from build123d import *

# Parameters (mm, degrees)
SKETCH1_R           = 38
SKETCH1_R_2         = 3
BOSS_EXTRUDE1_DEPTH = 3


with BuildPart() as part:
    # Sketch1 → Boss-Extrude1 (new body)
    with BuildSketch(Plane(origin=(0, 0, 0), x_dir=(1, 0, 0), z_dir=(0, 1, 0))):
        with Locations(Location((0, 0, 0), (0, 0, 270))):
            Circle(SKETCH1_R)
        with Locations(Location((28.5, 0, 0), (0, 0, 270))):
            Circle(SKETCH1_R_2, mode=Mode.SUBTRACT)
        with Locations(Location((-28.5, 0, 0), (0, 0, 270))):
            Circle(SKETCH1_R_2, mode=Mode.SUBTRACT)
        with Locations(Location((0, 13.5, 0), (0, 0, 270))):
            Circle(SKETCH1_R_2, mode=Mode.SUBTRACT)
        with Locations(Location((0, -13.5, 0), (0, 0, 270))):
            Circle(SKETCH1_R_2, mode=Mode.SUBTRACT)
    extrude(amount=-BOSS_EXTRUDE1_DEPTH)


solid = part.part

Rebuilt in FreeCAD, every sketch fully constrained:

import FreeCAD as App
import Part
import Sketcher

V = App.Vector

doc = App.newDocument("Part")
params = doc.addObject("Spreadsheet::Sheet", "Params")
for row, (alias, value) in enumerate([
    ("sketch1_diameter", "76 mm"),
    ("sketch1_diameter2", "6 mm"),
    ("pad1_length", "3 mm"),
], start=1):
    params.set(f"A{row}", alias)
    params.set(f"B{row}", "=" + value)
    params.setAlias(f"B{row}", alias)

body = doc.addObject("PartDesign::Body", "Body")

# Sketch on XZ plane
sketch1 = body.newObject("Sketcher::SketchObject", "Sketch")
sketch1.AttachmentSupport = (doc.getObject("XZ_Plane"), [""])
sketch1.MapMode = "FlatFace"
sketch1.addGeometry(Part.Circle(V(0, 0, 0), V(0, 0, 1), 38), False)
sketch1.addGeometry(Part.Circle(V(0, -13.5, 0), V(0, 0, 1), 3), False)
sketch1.addGeometry(Part.Circle(V(-28.5, 0, 0), V(0, 0, 1), 3), False)
sketch1.addGeometry(Part.Circle(V(28.5, 0, 0), V(0, 0, 1), 3), False)
sketch1.addGeometry(Part.Circle(V(0, 13.5, 0), V(0, 0, 1), 3), False)
sketch1.addConstraint(Sketcher.Constraint("Coincident", 0, 3, -1, 1))
sketch1.addConstraint(Sketcher.Constraint("Equal", 1, 2))
sketch1.addConstraint(Sketcher.Constraint("Equal", 2, 3))
sketch1.addConstraint(Sketcher.Constraint("Equal", 3, 4))
sketch1.addConstraint(Sketcher.Constraint("Symmetric", 2, 3, 3, 3, -1, 1))
sketch1.addConstraint(Sketcher.Constraint("Symmetric", 1, 3, 4, 3, -1, 1))
sketch1.addConstraint(Sketcher.Constraint("PointOnObject", 1, 3, -2))
sketch1.addConstraint(Sketcher.Constraint("PointOnObject", 2, 3, -1))
sketch1.addConstraint(Sketcher.Constraint("Diameter", 0, 76.0))
sketch1.addConstraint(Sketcher.Constraint("Diameter", 1, 6.0))
sketch1.addConstraint(Sketcher.Constraint("DistanceX", 2, 3, 3, 3, 57.0))
sketch1.addConstraint(Sketcher.Constraint("DistanceY", 1, 3, 4, 3, 27.0))
sketch1.setExpression("Constraints[8]", "Params.sketch1_diameter")
sketch1.setExpression("Constraints[9]", "Params.sketch1_diameter2")
pad1 = body.newObject("PartDesign::Pad", "Pad")
pad1.Profile = sketch1
pad1.setExpression("Length", "Params.pad1_length")

doc.recompute()
